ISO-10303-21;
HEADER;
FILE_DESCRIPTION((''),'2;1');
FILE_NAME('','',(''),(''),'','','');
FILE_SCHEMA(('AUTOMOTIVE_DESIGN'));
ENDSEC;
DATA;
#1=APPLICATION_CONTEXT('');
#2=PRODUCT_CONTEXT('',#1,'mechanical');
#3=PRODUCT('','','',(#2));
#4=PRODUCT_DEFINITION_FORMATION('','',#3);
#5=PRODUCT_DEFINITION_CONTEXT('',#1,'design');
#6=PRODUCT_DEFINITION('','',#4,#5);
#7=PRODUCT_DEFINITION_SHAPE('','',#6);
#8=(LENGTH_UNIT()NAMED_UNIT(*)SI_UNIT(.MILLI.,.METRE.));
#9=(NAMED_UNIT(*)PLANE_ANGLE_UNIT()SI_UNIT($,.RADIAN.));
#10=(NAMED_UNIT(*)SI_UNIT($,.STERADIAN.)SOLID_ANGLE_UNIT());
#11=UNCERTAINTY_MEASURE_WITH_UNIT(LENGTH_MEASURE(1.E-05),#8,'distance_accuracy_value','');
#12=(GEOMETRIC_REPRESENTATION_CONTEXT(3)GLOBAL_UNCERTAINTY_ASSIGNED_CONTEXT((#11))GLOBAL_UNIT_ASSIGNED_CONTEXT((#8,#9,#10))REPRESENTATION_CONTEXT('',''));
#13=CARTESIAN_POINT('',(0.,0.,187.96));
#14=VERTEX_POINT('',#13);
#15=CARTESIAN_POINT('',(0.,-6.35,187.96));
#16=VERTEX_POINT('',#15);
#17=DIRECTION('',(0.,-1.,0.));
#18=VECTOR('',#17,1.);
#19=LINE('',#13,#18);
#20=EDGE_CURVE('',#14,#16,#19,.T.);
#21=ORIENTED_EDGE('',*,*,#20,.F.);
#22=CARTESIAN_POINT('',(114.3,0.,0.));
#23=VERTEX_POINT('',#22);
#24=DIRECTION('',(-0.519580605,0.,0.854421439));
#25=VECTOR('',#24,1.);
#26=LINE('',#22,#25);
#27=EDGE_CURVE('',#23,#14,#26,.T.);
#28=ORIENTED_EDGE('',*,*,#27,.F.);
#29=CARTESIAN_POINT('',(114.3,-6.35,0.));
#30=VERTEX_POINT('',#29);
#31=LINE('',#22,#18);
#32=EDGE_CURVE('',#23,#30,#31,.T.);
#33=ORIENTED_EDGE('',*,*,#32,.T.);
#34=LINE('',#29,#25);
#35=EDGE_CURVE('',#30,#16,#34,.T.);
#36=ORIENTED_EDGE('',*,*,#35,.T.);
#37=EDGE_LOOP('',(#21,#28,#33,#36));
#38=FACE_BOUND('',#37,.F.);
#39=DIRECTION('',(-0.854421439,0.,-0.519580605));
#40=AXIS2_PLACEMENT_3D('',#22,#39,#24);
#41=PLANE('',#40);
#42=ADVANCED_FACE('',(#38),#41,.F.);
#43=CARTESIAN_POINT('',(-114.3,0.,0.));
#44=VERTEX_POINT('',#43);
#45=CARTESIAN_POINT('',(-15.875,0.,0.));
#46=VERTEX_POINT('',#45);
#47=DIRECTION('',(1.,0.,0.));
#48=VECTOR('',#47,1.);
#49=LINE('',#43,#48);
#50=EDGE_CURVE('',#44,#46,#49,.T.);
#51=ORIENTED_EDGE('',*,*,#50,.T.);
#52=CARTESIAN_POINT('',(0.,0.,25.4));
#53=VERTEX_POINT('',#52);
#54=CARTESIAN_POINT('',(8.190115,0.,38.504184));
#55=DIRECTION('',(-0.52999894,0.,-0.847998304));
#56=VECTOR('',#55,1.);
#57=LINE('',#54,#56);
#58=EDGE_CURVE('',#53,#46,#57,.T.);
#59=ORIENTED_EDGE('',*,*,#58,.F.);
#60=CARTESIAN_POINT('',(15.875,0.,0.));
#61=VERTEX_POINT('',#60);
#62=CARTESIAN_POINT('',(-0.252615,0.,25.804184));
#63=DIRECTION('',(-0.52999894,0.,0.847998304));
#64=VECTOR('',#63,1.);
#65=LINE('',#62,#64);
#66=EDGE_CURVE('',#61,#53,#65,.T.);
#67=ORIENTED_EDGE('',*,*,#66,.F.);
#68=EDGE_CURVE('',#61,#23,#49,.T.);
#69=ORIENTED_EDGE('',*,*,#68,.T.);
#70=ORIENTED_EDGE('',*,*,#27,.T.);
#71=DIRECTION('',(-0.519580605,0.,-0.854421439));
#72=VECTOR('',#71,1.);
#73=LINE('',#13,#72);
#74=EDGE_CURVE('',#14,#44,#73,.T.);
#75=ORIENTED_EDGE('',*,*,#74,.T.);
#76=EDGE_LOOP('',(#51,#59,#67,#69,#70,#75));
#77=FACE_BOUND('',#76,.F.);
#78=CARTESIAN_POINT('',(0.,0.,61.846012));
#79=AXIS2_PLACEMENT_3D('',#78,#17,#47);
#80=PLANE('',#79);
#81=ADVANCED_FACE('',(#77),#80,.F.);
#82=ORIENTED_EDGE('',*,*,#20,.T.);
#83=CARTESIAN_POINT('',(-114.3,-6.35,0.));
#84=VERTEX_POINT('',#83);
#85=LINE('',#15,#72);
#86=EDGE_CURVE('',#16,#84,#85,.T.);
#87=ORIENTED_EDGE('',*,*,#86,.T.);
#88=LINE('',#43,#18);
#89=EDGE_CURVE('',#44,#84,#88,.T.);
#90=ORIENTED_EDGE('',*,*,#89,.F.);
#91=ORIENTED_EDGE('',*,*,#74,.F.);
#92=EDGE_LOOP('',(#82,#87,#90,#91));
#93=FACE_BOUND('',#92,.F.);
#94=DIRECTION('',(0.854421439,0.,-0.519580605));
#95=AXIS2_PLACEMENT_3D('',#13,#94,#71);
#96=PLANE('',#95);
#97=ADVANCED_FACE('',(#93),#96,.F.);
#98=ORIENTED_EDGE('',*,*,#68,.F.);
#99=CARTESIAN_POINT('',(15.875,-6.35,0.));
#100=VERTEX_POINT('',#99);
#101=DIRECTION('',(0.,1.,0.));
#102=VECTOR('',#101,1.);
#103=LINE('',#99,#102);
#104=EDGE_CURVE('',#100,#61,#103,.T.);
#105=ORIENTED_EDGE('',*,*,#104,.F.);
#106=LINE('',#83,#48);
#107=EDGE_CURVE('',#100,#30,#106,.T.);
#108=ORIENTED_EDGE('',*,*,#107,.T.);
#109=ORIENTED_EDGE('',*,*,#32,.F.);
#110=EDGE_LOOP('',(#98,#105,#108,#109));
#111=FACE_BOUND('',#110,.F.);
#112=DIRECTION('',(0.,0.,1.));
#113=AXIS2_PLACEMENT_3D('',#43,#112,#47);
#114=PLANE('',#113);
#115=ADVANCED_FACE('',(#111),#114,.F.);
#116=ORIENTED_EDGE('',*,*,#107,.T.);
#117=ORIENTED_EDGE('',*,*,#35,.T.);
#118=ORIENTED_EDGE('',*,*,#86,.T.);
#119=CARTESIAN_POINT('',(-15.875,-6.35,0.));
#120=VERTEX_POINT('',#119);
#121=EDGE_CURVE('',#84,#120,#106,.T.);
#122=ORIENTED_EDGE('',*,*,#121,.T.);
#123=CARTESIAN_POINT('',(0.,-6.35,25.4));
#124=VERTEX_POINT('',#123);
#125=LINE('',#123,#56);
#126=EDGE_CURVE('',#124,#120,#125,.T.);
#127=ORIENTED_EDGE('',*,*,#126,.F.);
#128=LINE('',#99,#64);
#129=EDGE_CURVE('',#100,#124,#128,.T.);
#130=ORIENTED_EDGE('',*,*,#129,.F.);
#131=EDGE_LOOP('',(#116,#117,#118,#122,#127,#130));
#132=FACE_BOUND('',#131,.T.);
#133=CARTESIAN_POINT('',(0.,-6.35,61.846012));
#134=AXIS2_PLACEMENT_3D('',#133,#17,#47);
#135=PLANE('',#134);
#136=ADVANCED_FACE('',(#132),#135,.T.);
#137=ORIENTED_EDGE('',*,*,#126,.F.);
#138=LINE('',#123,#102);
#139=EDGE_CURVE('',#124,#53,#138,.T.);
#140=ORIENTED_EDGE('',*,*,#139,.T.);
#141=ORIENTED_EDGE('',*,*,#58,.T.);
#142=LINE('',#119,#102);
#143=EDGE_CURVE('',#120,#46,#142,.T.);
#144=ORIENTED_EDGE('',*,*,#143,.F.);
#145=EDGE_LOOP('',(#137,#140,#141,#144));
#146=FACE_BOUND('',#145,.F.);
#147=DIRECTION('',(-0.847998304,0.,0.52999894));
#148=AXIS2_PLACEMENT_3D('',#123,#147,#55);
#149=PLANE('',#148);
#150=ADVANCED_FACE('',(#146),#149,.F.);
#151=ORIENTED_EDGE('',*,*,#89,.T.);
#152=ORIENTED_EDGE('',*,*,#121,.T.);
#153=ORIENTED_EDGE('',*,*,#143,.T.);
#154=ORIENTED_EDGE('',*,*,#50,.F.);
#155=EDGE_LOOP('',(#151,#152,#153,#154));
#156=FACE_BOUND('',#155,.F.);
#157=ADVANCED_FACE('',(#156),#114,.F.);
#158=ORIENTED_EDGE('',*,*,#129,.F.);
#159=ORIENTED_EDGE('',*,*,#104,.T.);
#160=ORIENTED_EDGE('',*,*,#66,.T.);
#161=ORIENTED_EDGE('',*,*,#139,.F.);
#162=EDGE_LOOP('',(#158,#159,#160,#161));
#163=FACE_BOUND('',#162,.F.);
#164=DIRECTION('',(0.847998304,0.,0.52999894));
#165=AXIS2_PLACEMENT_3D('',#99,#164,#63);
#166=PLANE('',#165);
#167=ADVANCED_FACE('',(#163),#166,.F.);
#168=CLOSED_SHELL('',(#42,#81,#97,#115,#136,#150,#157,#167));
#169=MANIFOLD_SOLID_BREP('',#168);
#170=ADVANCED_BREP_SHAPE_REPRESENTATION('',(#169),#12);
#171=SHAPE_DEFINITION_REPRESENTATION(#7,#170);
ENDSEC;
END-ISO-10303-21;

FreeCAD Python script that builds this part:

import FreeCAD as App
import Part
import Sketcher
Q = App.Units.Quantity


def add_polygon(sketch, points):
    """Adds a closed chain of lines whose ends are joined by coincident constraints."""
    first, n = sketch.GeometryCount, len(points)
    for a, b in zip(points, points[1:] + points[:1]):
        sketch.addGeometry(Part.LineSegment(App.Vector(*a, 0), App.Vector(*b, 0)), False)
    for i in range(n):
        sketch.addConstraint(Sketcher.Constraint("Coincident", first + i, 2, first + (i + 1) % n, 1))

doc = App.newDocument("Part")
body = doc.addObject("PartDesign::Body", "Body")

sketch1 = doc.addObject("Sketcher::SketchObject", "Sketch")
body.addObject(sketch1)
sketch1.AttachmentSupport = (doc.XZ_Plane, [""])
sketch1.MapMode = "FlatFace"
add_polygon(sketch1, [(0, 187.96), (-114.3, 0), (114.3, 0)])
sketch1.addConstraint([
    Sketcher.Constraint("Horizontal", 1),
    Sketcher.Constraint("Symmetric", 0, 2, 1, 2, -1, 1),
    Sketcher.Constraint("PointOnObject", 2, 2, -2),
    Sketcher.Constraint("DistanceX", 1, 1, 1, 2, Q("9 in")),
    Sketcher.Constraint("DistanceY", -1, 1, 2, 2, Q("7.4 in")),
])
pad1 = doc.addObject("PartDesign::Pad", "Pad")
body.addObject(pad1)
pad1.Profile = sketch1
pad1.Length = Q("0.25 in")

sketch2 = doc.addObject("Sketcher::SketchObject", "Sketch001")
body.addObject(sketch2)
sketch2.AttachmentSupport = (doc.XZ_Plane, [""])
sketch2.MapMode = "FlatFace"
sketch2.AttachmentOffset = App.Placement(App.Vector(0, 0, 0.25 * 25.4), App.Rotation())
add_polygon(sketch2, [(0, 25.4), (-15.875, 0), (15.875, 0)])
sketch2.addConstraint([
    Sketcher.Constraint("Horizontal", 1),
    Sketcher.Constraint("Symmetric", 0, 2, 1, 2, -1, 1),
    Sketcher.Constraint("PointOnObject", 2, 2, -2),
    Sketcher.Constraint("DistanceY", -1, 1, 2, 2, Q("1 in")),
    Sketcher.Constraint("DistanceX", 1, 1, 1, 2, Q("1.25 in")),
])
pocket1 = doc.addObject("PartDesign::Pocket", "Pocket")
body.addObject(pocket1)
pocket1.Profile = sketch2
pocket1.Type = "ThroughAll"

doc.recompute()
